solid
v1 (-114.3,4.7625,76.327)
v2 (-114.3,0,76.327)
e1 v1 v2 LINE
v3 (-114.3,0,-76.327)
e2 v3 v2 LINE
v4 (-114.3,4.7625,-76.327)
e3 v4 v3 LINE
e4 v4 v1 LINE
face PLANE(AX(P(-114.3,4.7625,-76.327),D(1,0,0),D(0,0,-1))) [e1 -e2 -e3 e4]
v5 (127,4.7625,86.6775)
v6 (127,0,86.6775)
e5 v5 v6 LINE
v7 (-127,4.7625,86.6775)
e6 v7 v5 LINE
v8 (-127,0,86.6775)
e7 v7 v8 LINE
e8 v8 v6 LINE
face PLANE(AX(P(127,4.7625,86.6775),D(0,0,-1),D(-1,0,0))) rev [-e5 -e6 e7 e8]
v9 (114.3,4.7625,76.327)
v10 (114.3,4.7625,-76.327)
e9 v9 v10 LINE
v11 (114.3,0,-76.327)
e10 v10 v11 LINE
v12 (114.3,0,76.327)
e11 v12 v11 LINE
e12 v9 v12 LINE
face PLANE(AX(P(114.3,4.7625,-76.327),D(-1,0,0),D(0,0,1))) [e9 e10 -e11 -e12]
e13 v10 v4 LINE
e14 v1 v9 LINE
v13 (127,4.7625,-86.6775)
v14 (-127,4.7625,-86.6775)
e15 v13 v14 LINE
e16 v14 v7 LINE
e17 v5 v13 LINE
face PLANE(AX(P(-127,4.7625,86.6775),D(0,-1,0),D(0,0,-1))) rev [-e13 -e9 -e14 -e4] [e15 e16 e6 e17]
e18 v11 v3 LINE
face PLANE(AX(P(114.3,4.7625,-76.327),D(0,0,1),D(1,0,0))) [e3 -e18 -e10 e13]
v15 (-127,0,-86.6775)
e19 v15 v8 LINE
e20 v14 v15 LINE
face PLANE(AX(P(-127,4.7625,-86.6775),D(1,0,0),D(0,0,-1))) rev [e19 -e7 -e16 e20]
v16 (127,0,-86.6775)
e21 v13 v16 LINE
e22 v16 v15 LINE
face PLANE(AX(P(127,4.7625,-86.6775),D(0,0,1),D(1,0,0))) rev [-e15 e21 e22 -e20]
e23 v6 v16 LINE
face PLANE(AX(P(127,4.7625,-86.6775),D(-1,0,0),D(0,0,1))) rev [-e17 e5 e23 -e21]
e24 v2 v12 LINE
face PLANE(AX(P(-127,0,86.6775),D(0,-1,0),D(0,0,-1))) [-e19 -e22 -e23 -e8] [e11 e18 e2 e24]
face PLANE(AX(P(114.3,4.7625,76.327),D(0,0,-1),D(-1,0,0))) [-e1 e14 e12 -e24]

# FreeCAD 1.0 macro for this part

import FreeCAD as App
import Part
import Sketcher

V = App.Vector
Q = App.Units.Quantity


def add_polygon(sketch, points):
    """Adds a closed chain of lines whose ends are joined by coincident constraints."""
    first, n = sketch.GeometryCount, len(points)
    for a, b in zip(points, points[1:] + points[:1]):
        sketch.addGeometry(Part.LineSegment(App.Vector(*a, 0), App.Vector(*b, 0)), False)
    for i in range(n):
        sketch.addConstraint(Sketcher.Constraint("Coincident", first + i, 2, first + (i + 1) % n, 1))

doc = App.newDocument("Part")
params = doc.addObject("Spreadsheet::Sheet", "Params")
for row, (alias, value) in enumerate([
    ("sketch1_width", "10 in"),
    ("sketch1_width2", "9 in"),
    ("sketch1_height", "6.01 in"),
    ("sketch1_height2", "6.825 in"),
    ("pad1_length", "0.1875 in"),
], start=1):
    params.set(f"A{row}", alias)
    params.set(f"B{row}", "=" + value)
    params.setAlias(f"B{row}", alias)

body = doc.addObject("PartDesign::Body", "Body")

# Sketch on XZ plane
sketch1 = doc.addObject("Sketcher::SketchObject", "Sketch")
body.addObject(sketch1)
sketch1.AttachmentSupport = (doc.XZ_Plane, [""])
sketch1.MapMode = "FlatFace"
add_polygon(sketch1, [(-127, -87), (-127, 87), (127, 87), (127, -87)])  # lines 0-3
add_polygon(sketch1, [(114, 76), (-114, 76), (-114, -76), (114, -76)])  # lines 4-7
sketch1.addConstraint(Sketcher.Constraint("Vertical", 0))
sketch1.addConstraint(Sketcher.Constraint("Horizontal", 1))
sketch1.addConstraint(Sketcher.Constraint("Vertical", 2))
sketch1.addConstraint(Sketcher.Constraint("Horizontal", 3))
sketch1.addConstraint(Sketcher.Constraint("Horizontal", 4))
sketch1.addConstraint(Sketcher.Constraint("Vertical", 5))
sketch1.addConstraint(Sketcher.Constraint("Horizontal", 6))
sketch1.addConstraint(Sketcher.Constraint("Vertical", 7))
sketch1.addConstraint(Sketcher.Constraint("Symmetric", 0, 2, 2, 2, -1, 1))
sketch1.addConstraint(Sketcher.Constraint("Symmetric", 4, 2, 6, 2, -1, 1))
sketch1.addConstraint(Sketcher.Constraint("DistanceX", 1, 1, 1, 2, Q("10 in")))
sketch1.addConstraint(Sketcher.Constraint("DistanceX", 4, 2, 4, 1, Q("9 in")))
sketch1.addConstraint(Sketcher.Constraint("DistanceY", 5, 2, 5, 1, Q("6.01 in")))
sketch1.addConstraint(Sketcher.Constraint("DistanceY", 0, 1, 0, 2, Q("6.825 in")))
sketch1.setExpression("Constraints[18]", "Params.sketch1_width")
sketch1.setExpression("Constraints[19]", "Params.sketch1_width2")
sketch1.setExpression("Constraints[20]", "Params.sketch1_height")
sketch1.setExpression("Constraints[21]", "Params.sketch1_height2")
pad1 = doc.addObject("PartDesign::Pad", "Pad")
body.addObject(pad1)
pad1.Profile = sketch1
pad1.setExpression("Length", "Params.pad1_length")
pad1.Reversed = True

doc.recompute()
